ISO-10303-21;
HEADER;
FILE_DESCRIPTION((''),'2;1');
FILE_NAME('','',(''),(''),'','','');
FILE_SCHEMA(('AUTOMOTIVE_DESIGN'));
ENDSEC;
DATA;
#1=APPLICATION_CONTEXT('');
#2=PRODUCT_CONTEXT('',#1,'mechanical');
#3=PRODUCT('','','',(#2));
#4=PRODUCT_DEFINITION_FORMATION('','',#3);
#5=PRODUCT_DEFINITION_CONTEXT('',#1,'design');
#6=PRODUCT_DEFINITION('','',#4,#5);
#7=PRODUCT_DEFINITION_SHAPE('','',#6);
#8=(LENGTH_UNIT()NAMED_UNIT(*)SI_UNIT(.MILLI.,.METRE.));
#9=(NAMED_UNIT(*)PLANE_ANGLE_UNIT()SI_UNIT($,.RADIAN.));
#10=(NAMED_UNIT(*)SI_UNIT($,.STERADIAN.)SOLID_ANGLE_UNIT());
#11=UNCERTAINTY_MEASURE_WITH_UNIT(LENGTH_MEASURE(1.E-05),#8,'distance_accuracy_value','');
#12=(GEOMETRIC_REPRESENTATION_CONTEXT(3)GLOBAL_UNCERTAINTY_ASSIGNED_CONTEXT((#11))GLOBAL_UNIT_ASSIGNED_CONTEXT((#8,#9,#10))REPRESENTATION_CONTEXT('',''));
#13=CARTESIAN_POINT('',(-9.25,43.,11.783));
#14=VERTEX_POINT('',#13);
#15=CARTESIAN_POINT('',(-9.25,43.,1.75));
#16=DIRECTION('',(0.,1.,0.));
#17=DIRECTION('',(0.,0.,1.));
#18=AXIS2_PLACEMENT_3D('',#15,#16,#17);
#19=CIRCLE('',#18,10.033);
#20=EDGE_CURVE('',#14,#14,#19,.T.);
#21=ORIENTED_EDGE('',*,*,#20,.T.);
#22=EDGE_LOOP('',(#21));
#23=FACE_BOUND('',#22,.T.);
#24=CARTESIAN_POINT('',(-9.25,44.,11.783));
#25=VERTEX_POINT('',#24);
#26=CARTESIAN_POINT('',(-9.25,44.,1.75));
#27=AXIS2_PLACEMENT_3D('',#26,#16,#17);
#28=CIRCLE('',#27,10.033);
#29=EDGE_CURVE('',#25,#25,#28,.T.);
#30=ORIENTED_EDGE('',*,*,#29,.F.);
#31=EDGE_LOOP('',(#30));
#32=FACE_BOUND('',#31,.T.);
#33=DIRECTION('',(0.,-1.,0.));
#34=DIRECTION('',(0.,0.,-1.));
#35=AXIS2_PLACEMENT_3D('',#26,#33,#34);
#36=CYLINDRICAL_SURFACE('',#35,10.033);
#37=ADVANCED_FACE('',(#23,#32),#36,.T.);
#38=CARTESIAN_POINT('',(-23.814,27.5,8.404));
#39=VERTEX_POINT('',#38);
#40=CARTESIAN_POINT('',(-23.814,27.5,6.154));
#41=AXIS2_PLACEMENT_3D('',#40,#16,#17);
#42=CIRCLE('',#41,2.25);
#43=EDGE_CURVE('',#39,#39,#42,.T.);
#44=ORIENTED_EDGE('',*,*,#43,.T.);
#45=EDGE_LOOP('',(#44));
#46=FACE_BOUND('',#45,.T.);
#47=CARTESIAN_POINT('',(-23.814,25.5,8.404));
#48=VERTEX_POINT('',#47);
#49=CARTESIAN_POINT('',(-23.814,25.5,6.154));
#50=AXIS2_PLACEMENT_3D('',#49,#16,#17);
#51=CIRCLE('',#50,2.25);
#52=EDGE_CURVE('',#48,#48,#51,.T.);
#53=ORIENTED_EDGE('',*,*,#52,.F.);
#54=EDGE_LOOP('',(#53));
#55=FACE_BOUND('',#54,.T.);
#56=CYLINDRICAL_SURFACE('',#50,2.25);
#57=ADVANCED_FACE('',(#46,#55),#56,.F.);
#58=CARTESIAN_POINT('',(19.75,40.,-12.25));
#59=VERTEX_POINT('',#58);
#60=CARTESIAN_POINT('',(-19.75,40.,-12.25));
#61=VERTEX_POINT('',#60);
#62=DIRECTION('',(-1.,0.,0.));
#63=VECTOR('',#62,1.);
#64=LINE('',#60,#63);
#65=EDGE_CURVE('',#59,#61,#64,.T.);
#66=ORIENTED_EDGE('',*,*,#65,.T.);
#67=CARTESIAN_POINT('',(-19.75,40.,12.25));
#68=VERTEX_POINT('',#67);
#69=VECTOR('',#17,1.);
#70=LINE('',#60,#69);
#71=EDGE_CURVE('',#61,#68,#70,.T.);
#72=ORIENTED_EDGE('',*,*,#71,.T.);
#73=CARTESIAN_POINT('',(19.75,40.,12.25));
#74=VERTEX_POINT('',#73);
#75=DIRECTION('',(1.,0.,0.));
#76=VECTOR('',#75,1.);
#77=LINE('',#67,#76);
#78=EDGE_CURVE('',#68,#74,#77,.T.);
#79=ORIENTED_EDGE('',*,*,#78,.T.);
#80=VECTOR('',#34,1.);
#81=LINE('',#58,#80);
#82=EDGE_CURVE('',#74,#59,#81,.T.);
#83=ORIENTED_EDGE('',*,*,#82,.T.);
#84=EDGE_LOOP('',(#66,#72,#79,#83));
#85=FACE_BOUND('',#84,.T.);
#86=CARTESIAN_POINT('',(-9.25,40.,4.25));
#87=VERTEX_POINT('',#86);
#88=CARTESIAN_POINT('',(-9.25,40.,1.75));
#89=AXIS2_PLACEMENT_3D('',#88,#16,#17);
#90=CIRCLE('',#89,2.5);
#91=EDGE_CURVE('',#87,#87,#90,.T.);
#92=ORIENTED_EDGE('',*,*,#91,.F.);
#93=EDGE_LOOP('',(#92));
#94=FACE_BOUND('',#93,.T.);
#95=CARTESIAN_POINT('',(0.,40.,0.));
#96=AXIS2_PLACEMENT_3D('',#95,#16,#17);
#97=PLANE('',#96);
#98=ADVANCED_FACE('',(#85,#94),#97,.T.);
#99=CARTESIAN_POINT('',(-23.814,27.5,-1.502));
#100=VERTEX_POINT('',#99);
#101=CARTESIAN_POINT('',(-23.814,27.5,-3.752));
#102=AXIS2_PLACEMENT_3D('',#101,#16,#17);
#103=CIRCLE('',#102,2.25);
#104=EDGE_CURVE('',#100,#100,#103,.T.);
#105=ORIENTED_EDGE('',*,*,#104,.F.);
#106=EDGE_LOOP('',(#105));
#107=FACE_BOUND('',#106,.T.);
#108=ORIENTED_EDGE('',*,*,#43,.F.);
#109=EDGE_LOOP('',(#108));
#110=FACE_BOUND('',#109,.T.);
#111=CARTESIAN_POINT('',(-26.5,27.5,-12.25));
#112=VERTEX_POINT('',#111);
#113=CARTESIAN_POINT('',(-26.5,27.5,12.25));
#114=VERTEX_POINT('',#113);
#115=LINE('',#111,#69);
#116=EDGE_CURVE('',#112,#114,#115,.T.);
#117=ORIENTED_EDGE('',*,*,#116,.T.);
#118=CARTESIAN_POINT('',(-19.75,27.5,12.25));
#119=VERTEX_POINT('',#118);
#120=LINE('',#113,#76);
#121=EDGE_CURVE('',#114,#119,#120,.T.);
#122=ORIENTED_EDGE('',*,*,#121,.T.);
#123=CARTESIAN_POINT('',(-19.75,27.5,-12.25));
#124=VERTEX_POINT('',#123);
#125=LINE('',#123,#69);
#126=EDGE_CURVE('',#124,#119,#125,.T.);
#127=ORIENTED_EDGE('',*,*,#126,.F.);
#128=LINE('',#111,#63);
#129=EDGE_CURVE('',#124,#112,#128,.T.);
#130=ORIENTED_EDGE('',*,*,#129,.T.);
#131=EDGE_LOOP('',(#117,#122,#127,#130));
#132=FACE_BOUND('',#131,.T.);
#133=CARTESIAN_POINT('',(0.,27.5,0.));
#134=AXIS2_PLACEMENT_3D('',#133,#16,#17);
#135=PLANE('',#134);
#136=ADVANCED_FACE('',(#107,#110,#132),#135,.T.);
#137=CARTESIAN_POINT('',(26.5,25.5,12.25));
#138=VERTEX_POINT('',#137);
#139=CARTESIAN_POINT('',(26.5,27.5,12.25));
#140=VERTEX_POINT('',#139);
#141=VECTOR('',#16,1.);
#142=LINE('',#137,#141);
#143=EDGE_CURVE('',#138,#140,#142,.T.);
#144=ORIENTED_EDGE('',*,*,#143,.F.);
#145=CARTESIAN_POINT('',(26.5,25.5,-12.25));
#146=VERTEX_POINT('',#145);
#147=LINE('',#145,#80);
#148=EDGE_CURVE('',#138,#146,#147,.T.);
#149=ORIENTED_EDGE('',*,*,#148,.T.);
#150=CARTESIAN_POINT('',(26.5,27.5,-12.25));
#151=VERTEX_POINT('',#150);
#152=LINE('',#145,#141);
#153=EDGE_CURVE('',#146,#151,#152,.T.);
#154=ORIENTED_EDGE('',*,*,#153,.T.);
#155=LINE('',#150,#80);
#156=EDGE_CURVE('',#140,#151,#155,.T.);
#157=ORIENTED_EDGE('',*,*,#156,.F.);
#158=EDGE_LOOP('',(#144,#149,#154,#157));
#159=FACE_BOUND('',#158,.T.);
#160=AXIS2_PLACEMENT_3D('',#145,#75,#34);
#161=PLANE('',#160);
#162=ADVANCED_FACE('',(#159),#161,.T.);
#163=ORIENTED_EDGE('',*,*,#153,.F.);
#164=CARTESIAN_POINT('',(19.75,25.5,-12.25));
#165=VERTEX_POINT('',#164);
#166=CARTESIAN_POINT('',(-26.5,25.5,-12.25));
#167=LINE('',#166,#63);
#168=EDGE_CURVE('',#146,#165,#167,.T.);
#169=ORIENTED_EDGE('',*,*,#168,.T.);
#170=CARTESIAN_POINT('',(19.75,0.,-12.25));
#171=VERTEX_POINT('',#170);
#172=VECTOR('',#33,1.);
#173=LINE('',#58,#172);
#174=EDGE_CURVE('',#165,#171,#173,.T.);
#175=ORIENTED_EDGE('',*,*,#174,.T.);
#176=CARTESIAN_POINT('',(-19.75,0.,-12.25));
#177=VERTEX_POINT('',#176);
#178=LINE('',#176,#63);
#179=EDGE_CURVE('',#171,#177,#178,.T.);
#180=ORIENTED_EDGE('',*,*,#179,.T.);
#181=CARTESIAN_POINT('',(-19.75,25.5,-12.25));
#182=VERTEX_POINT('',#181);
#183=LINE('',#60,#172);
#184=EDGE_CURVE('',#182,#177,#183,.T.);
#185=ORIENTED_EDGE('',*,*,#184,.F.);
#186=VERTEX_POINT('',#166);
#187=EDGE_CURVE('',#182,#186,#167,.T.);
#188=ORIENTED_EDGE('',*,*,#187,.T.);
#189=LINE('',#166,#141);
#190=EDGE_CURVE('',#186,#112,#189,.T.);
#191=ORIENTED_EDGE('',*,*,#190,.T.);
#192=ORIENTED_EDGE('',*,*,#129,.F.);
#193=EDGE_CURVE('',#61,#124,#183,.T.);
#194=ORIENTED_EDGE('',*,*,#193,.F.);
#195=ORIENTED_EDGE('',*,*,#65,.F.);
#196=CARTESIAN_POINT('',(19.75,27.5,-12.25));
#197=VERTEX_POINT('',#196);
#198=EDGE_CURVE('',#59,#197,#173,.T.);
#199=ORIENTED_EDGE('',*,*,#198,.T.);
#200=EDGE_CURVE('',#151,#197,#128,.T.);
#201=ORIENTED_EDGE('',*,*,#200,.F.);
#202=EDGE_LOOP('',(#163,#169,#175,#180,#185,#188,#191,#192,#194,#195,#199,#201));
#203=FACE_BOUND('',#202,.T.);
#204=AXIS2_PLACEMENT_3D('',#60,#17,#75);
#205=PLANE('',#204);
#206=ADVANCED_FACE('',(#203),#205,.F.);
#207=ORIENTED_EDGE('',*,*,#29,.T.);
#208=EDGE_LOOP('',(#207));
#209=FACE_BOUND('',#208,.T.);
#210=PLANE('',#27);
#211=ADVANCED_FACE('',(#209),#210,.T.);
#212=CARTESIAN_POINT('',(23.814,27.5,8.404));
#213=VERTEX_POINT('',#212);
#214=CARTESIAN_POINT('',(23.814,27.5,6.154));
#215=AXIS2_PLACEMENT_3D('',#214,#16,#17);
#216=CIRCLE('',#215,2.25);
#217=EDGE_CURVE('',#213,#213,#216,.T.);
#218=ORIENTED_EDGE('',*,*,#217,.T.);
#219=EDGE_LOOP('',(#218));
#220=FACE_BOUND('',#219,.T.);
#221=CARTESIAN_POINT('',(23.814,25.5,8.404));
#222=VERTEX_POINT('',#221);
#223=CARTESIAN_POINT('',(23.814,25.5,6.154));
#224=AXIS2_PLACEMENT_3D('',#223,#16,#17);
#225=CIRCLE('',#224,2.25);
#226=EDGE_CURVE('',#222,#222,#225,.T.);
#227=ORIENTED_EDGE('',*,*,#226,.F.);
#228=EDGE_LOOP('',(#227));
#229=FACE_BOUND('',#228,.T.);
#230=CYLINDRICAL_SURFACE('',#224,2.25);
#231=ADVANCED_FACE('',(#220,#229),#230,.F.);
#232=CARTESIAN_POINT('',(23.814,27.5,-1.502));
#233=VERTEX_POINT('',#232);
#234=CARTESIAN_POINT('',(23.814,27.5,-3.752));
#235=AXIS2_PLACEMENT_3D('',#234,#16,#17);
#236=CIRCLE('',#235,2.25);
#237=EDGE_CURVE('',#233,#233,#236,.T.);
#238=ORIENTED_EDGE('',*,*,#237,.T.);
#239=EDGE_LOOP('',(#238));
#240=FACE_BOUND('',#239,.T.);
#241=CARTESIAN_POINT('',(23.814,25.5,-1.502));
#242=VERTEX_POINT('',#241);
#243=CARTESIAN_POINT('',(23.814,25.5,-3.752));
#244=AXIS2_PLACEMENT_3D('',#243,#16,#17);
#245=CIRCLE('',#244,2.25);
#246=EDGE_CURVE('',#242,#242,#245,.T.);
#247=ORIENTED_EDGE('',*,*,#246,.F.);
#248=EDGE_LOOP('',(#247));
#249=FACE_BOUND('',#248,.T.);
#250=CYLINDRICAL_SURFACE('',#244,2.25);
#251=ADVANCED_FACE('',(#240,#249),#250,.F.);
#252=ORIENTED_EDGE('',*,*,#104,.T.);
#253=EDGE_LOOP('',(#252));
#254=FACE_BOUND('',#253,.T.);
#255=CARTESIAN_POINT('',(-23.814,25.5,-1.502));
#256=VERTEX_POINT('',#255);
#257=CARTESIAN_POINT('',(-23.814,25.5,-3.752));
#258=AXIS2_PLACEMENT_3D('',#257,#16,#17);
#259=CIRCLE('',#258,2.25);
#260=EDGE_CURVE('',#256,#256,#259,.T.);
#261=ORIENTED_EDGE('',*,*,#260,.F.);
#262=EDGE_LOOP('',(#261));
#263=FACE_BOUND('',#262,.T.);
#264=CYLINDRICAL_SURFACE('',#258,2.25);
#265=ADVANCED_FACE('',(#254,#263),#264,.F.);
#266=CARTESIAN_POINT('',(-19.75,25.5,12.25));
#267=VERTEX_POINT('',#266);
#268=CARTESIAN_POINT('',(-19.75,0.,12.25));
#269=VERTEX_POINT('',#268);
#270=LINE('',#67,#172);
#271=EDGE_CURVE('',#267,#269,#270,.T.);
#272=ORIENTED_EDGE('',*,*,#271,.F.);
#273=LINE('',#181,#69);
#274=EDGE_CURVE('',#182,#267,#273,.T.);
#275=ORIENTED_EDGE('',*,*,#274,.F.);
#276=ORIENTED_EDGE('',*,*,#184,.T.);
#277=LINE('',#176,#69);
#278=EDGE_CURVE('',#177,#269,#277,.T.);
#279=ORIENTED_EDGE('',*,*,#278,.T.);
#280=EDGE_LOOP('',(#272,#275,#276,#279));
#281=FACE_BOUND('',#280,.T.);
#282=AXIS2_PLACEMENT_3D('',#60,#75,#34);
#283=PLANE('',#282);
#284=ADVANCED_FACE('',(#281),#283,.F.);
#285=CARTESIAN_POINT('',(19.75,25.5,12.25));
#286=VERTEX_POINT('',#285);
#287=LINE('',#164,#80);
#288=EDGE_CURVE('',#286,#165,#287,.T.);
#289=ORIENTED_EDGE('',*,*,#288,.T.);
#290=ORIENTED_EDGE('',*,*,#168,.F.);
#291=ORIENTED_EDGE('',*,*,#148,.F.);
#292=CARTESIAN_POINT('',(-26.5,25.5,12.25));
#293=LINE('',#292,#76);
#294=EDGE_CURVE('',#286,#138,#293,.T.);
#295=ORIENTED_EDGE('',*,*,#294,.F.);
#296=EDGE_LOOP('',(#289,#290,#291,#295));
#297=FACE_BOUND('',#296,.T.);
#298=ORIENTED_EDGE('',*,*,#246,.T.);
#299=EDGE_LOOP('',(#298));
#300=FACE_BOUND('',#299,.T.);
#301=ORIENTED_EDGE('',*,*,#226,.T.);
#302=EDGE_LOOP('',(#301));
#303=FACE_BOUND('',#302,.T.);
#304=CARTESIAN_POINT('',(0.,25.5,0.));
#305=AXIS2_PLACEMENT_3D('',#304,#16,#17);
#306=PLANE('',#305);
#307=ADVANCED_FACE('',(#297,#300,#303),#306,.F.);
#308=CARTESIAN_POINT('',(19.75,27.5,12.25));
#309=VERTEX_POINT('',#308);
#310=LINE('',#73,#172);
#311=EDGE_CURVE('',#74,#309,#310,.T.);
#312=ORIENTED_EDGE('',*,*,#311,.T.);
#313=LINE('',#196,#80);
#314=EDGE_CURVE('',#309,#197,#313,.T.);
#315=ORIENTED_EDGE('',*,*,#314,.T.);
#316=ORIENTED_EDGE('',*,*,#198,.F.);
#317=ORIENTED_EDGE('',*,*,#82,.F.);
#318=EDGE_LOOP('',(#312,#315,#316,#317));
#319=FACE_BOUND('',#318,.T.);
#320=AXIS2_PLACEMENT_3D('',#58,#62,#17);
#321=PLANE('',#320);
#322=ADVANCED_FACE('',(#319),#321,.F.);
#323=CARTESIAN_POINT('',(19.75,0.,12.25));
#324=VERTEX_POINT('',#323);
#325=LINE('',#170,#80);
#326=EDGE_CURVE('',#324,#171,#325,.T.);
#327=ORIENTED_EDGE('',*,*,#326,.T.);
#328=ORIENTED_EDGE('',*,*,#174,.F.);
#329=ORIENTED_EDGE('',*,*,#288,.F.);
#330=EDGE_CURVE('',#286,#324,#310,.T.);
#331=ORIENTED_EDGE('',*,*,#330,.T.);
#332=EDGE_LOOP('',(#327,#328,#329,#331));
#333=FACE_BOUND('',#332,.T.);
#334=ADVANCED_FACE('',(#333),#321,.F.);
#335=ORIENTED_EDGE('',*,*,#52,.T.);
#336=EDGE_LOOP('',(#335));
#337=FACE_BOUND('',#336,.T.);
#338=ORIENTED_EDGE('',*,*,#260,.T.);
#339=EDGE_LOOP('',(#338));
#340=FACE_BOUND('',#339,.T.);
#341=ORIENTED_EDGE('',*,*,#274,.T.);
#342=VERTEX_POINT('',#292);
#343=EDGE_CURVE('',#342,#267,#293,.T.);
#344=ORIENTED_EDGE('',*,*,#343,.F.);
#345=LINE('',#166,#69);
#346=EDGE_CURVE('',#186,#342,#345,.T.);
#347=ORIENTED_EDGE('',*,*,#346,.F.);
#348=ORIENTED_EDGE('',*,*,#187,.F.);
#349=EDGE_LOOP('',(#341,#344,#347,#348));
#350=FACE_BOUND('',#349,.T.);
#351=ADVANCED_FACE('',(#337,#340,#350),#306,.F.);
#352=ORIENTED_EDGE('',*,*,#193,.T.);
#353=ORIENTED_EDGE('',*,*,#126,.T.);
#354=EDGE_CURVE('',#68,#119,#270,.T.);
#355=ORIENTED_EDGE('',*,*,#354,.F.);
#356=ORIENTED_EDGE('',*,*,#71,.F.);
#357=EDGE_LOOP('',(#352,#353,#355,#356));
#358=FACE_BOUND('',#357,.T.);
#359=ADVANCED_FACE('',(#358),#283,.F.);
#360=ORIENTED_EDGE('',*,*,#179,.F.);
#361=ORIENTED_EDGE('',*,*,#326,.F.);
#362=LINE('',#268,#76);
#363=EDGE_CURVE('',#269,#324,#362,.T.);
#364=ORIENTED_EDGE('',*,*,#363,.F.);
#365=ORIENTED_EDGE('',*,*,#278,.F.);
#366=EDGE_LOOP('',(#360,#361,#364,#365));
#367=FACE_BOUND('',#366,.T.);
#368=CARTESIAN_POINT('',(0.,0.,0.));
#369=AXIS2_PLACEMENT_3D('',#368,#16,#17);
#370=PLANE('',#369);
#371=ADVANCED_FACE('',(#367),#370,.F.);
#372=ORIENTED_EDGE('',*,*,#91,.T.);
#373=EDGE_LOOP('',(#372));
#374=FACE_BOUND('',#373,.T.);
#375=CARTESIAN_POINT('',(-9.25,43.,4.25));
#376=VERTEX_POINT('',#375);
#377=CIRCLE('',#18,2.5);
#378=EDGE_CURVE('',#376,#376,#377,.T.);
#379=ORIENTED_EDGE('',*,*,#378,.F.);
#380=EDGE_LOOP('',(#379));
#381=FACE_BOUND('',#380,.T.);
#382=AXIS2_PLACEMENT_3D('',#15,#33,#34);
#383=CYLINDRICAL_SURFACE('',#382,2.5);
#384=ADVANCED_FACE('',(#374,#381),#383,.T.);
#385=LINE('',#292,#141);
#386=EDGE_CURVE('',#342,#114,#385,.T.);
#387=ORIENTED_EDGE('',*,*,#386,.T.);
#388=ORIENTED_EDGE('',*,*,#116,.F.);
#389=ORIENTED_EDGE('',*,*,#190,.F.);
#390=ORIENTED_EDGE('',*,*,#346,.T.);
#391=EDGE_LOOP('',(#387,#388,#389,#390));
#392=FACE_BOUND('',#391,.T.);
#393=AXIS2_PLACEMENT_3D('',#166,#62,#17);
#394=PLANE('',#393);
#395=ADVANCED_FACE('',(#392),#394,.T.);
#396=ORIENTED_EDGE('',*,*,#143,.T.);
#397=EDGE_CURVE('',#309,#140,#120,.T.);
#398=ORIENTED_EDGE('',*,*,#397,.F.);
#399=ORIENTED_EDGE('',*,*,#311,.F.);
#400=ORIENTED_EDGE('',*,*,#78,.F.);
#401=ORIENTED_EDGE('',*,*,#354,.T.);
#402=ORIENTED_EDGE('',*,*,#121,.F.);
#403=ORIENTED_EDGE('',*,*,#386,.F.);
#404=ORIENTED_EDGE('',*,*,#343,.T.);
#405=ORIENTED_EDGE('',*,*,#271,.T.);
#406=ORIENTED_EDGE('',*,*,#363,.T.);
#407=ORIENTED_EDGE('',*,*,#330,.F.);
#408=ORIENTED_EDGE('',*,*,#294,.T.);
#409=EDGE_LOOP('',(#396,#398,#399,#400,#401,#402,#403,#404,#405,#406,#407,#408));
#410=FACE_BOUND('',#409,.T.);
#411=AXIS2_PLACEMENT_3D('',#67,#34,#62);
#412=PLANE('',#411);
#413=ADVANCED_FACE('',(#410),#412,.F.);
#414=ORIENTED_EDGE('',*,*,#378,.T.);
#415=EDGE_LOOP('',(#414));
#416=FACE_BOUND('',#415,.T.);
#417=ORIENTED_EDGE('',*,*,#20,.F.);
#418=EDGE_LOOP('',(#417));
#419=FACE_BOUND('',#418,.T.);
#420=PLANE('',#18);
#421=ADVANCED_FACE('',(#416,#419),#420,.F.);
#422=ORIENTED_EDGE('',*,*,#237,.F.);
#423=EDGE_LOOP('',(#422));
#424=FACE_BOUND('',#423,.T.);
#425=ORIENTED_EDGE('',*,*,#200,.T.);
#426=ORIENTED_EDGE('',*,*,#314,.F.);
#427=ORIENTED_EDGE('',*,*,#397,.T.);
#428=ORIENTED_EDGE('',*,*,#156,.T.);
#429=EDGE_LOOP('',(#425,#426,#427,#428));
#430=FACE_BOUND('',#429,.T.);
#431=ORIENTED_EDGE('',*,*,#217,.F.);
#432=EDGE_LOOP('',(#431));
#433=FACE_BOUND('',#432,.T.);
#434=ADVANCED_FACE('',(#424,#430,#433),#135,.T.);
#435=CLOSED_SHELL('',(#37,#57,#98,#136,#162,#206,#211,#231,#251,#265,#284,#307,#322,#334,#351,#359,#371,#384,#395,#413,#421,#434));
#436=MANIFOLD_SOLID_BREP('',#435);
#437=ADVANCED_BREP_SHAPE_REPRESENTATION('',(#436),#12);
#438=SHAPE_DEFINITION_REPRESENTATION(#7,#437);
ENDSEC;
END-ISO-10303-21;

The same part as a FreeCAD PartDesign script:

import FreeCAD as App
import Part
import Sketcher
from FreeCAD import Vector


def add_polygon(sketch, points):
    """Adds a closed chain of lines whose ends are joined by coincident constraints."""
    first, n = sketch.GeometryCount, len(points)
    for a, b in zip(points, points[1:] + points[:1]):
        sketch.addGeometry(Part.LineSegment(App.Vector(*a, 0), App.Vector(*b, 0)), False)
    for i in range(n):
        sketch.addConstraint(Sketcher.Constraint("Coincident", first + i, 2, first + (i + 1) % n, 1))

doc = App.newDocument("Part")
body = doc.addObject("PartDesign::Body", "Body")

sketch1 = body.newObject("Sketcher::SketchObject", "Sketch")
sketch1.AttachmentSupport = (doc.getObject("XZ_Plane"), [""])
sketch1.MapMode = "FlatFace"
add_polygon(sketch1, [(-19.75, -12.25), (-19.75, 12.25), (19.75, 12.25), (19.75, -12.25)])
sketch1.addConstraint(Sketcher.Constraint("Vertical", 0))
sketch1.addConstraint(Sketcher.Constraint("Horizontal", 1))
sketch1.addConstraint(Sketcher.Constraint("Vertical", 2))
sketch1.addConstraint(Sketcher.Constraint("Horizontal", 3))
sketch1.addConstraint(Sketcher.Constraint("Symmetric", 0, 2, 2, 2, -1, 1))
sketch1.addConstraint(Sketcher.Constraint("DistanceX", 1, 1, 1, 2, 39.5))
sketch1.addConstraint(Sketcher.Constraint("DistanceY", 0, 1, 0, 2, 24.5))
pad1 = body.newObject("PartDesign::Pad", "Pad")
pad1.Profile = sketch1
pad1.Length = 40
pad1.Reversed = True

sketch2 = body.newObject("Sketcher::SketchObject", "Sketch001")
sketch2.AttachmentSupport = (doc.getObject("XZ_Plane"), [""])
sketch2.MapMode = "FlatFace"
sketch2.AttachmentOffset = App.Placement(Vector(0, 0, -27.5), App.Rotation())
add_polygon(sketch2, [(-26.5, -12.25), (-26.5, 12.25), (26.5, 12.25), (26.5, -12.25)])
sketch2.addConstraint(Sketcher.Constraint("Vertical", 0))
sketch2.addConstraint(Sketcher.Constraint("Horizontal", 1))
sketch2.addConstraint(Sketcher.Constraint("Vertical", 2))
sketch2.addConstraint(Sketcher.Constraint("Horizontal", 3))
sketch2.addConstraint(Sketcher.Constraint("Symmetric", 0, 2, 2, 2, -1, 1))
sketch2.addConstraint(Sketcher.Constraint("DistanceX", 1, 1, 1, 2, 53.0))
sketch2.addConstraint(Sketcher.Constraint("DistanceY", 0, 1, 0, 2, 24.5))
pad2 = body.newObject("PartDesign::Pad", "Pad001")
pad2.Profile = sketch2
pad2.Length = 2

sketch3 = body.newObject("Sketcher::SketchObject", "Sketch002")
sketch3.AttachmentSupport = (doc.getObject("XZ_Plane"), [""])
sketch3.MapMode = "FlatFace"
sketch3.AttachmentOffset = App.Placement(Vector(0, 0, -27.5), App.Rotation())
sketch3.addGeometry(Part.Circle(Vector(-23.814, -3.752, 0), Vector(0, 0, 1), 2.25), False)
sketch3.addGeometry(Part.Circle(Vector(-23.814, 6.154, 0), Vector(0, 0, 1), 2.25), False)
sketch3.addGeometry(Part.Circle(Vector(23.814, -3.752, 0), Vector(0, 0, 1), 2.25), False)
sketch3.addGeometry(Part.Circle(Vector(23.814, 6.154, 0), Vector(0, 0, 1), 2.25), False)
sketch3.addConstraint(Sketcher.Constraint("Equal", 0, 1))
sketch3.addConstraint(Sketcher.Constraint("Equal", 1, 2))
sketch3.addConstraint(Sketcher.Constraint("Equal", 2, 3))
sketch3.addConstraint(Sketcher.Constraint("Symmetric", 0, 3, 2, 3, -2))
sketch3.addConstraint(Sketcher.Constraint("Symmetric", 1, 3, 3, 3, -2))
sketch3.addConstraint(Sketcher.Constraint("Vertical", 0, 3, 1, 3))
sketch3.addConstraint(Sketcher.Constraint("Diameter", 0, 4.5))
sketch3.addConstraint(Sketcher.Constraint("DistanceX", 0, 3, -1, 1, 23.814))
sketch3.addConstraint(Sketcher.Constraint("DistanceY", 0, 3, -1, 1, 3.752))
sketch3.addConstraint(Sketcher.Constraint("DistanceY", -1, 1, 1, 3, 6.154))
pocket1 = body.newObject("PartDesign::Pocket", "Pocket")
pocket1.Profile = sketch3
pocket1.Length = 2
pocket1.Reversed = True

sketch4 = body.newObject("Sketcher::SketchObject", "Sketch003")
sketch4.AttachmentSupport = (doc.getObject("XZ_Plane"), [""])
sketch4.MapMode = "FlatFace"
sketch4.AttachmentOffset = App.Placement(Vector(0, 0, -40), App.Rotation())
sketch4.addGeometry(Part.Circle(Vector(-9.25, 1.75, 0), Vector(0, 0, 1), 2.5), False)
sketch4.addConstraint(Sketcher.Constraint("Diameter", 0, 5.0))
sketch4.addConstraint(Sketcher.Constraint("DistanceX", 0, 3, -1, 1, 9.25))
sketch4.addConstraint(Sketcher.Constraint("DistanceY", -1, 1, 0, 3, 1.75))
pad3 = body.newObject("PartDesign::Pad", "Pad002")
pad3.Profile = sketch4
pad3.Length = 3
pad3.Reversed = True

sketch5 = body.newObject("Sketcher::SketchObject", "Sketch004")
sketch5.AttachmentSupport = (doc.getObject("XZ_Plane"), [""])
sketch5.MapMode = "FlatFace"
sketch5.AttachmentOffset = App.Placement(Vector(0, 0, -43), App.Rotation())
sketch5.addGeometry(Part.Circle(Vector(-9.25, 1.75, 0), Vector(0, 0, 1), 10.033), False)
sketch5.addConstraint(Sketcher.Constraint("Diameter", 0, 20.066))
sketch5.addConstraint(Sketcher.Constraint("DistanceX", 0, 3, -1, 1, 9.25))
sketch5.addConstraint(Sketcher.Constraint("DistanceY", -1, 1, 0, 3, 1.75))
pad4 = body.newObject("PartDesign::Pad", "Pad003")
pad4.Profile = sketch5
pad4.Length = 1
pad4.Reversed = True

doc.recompute()
